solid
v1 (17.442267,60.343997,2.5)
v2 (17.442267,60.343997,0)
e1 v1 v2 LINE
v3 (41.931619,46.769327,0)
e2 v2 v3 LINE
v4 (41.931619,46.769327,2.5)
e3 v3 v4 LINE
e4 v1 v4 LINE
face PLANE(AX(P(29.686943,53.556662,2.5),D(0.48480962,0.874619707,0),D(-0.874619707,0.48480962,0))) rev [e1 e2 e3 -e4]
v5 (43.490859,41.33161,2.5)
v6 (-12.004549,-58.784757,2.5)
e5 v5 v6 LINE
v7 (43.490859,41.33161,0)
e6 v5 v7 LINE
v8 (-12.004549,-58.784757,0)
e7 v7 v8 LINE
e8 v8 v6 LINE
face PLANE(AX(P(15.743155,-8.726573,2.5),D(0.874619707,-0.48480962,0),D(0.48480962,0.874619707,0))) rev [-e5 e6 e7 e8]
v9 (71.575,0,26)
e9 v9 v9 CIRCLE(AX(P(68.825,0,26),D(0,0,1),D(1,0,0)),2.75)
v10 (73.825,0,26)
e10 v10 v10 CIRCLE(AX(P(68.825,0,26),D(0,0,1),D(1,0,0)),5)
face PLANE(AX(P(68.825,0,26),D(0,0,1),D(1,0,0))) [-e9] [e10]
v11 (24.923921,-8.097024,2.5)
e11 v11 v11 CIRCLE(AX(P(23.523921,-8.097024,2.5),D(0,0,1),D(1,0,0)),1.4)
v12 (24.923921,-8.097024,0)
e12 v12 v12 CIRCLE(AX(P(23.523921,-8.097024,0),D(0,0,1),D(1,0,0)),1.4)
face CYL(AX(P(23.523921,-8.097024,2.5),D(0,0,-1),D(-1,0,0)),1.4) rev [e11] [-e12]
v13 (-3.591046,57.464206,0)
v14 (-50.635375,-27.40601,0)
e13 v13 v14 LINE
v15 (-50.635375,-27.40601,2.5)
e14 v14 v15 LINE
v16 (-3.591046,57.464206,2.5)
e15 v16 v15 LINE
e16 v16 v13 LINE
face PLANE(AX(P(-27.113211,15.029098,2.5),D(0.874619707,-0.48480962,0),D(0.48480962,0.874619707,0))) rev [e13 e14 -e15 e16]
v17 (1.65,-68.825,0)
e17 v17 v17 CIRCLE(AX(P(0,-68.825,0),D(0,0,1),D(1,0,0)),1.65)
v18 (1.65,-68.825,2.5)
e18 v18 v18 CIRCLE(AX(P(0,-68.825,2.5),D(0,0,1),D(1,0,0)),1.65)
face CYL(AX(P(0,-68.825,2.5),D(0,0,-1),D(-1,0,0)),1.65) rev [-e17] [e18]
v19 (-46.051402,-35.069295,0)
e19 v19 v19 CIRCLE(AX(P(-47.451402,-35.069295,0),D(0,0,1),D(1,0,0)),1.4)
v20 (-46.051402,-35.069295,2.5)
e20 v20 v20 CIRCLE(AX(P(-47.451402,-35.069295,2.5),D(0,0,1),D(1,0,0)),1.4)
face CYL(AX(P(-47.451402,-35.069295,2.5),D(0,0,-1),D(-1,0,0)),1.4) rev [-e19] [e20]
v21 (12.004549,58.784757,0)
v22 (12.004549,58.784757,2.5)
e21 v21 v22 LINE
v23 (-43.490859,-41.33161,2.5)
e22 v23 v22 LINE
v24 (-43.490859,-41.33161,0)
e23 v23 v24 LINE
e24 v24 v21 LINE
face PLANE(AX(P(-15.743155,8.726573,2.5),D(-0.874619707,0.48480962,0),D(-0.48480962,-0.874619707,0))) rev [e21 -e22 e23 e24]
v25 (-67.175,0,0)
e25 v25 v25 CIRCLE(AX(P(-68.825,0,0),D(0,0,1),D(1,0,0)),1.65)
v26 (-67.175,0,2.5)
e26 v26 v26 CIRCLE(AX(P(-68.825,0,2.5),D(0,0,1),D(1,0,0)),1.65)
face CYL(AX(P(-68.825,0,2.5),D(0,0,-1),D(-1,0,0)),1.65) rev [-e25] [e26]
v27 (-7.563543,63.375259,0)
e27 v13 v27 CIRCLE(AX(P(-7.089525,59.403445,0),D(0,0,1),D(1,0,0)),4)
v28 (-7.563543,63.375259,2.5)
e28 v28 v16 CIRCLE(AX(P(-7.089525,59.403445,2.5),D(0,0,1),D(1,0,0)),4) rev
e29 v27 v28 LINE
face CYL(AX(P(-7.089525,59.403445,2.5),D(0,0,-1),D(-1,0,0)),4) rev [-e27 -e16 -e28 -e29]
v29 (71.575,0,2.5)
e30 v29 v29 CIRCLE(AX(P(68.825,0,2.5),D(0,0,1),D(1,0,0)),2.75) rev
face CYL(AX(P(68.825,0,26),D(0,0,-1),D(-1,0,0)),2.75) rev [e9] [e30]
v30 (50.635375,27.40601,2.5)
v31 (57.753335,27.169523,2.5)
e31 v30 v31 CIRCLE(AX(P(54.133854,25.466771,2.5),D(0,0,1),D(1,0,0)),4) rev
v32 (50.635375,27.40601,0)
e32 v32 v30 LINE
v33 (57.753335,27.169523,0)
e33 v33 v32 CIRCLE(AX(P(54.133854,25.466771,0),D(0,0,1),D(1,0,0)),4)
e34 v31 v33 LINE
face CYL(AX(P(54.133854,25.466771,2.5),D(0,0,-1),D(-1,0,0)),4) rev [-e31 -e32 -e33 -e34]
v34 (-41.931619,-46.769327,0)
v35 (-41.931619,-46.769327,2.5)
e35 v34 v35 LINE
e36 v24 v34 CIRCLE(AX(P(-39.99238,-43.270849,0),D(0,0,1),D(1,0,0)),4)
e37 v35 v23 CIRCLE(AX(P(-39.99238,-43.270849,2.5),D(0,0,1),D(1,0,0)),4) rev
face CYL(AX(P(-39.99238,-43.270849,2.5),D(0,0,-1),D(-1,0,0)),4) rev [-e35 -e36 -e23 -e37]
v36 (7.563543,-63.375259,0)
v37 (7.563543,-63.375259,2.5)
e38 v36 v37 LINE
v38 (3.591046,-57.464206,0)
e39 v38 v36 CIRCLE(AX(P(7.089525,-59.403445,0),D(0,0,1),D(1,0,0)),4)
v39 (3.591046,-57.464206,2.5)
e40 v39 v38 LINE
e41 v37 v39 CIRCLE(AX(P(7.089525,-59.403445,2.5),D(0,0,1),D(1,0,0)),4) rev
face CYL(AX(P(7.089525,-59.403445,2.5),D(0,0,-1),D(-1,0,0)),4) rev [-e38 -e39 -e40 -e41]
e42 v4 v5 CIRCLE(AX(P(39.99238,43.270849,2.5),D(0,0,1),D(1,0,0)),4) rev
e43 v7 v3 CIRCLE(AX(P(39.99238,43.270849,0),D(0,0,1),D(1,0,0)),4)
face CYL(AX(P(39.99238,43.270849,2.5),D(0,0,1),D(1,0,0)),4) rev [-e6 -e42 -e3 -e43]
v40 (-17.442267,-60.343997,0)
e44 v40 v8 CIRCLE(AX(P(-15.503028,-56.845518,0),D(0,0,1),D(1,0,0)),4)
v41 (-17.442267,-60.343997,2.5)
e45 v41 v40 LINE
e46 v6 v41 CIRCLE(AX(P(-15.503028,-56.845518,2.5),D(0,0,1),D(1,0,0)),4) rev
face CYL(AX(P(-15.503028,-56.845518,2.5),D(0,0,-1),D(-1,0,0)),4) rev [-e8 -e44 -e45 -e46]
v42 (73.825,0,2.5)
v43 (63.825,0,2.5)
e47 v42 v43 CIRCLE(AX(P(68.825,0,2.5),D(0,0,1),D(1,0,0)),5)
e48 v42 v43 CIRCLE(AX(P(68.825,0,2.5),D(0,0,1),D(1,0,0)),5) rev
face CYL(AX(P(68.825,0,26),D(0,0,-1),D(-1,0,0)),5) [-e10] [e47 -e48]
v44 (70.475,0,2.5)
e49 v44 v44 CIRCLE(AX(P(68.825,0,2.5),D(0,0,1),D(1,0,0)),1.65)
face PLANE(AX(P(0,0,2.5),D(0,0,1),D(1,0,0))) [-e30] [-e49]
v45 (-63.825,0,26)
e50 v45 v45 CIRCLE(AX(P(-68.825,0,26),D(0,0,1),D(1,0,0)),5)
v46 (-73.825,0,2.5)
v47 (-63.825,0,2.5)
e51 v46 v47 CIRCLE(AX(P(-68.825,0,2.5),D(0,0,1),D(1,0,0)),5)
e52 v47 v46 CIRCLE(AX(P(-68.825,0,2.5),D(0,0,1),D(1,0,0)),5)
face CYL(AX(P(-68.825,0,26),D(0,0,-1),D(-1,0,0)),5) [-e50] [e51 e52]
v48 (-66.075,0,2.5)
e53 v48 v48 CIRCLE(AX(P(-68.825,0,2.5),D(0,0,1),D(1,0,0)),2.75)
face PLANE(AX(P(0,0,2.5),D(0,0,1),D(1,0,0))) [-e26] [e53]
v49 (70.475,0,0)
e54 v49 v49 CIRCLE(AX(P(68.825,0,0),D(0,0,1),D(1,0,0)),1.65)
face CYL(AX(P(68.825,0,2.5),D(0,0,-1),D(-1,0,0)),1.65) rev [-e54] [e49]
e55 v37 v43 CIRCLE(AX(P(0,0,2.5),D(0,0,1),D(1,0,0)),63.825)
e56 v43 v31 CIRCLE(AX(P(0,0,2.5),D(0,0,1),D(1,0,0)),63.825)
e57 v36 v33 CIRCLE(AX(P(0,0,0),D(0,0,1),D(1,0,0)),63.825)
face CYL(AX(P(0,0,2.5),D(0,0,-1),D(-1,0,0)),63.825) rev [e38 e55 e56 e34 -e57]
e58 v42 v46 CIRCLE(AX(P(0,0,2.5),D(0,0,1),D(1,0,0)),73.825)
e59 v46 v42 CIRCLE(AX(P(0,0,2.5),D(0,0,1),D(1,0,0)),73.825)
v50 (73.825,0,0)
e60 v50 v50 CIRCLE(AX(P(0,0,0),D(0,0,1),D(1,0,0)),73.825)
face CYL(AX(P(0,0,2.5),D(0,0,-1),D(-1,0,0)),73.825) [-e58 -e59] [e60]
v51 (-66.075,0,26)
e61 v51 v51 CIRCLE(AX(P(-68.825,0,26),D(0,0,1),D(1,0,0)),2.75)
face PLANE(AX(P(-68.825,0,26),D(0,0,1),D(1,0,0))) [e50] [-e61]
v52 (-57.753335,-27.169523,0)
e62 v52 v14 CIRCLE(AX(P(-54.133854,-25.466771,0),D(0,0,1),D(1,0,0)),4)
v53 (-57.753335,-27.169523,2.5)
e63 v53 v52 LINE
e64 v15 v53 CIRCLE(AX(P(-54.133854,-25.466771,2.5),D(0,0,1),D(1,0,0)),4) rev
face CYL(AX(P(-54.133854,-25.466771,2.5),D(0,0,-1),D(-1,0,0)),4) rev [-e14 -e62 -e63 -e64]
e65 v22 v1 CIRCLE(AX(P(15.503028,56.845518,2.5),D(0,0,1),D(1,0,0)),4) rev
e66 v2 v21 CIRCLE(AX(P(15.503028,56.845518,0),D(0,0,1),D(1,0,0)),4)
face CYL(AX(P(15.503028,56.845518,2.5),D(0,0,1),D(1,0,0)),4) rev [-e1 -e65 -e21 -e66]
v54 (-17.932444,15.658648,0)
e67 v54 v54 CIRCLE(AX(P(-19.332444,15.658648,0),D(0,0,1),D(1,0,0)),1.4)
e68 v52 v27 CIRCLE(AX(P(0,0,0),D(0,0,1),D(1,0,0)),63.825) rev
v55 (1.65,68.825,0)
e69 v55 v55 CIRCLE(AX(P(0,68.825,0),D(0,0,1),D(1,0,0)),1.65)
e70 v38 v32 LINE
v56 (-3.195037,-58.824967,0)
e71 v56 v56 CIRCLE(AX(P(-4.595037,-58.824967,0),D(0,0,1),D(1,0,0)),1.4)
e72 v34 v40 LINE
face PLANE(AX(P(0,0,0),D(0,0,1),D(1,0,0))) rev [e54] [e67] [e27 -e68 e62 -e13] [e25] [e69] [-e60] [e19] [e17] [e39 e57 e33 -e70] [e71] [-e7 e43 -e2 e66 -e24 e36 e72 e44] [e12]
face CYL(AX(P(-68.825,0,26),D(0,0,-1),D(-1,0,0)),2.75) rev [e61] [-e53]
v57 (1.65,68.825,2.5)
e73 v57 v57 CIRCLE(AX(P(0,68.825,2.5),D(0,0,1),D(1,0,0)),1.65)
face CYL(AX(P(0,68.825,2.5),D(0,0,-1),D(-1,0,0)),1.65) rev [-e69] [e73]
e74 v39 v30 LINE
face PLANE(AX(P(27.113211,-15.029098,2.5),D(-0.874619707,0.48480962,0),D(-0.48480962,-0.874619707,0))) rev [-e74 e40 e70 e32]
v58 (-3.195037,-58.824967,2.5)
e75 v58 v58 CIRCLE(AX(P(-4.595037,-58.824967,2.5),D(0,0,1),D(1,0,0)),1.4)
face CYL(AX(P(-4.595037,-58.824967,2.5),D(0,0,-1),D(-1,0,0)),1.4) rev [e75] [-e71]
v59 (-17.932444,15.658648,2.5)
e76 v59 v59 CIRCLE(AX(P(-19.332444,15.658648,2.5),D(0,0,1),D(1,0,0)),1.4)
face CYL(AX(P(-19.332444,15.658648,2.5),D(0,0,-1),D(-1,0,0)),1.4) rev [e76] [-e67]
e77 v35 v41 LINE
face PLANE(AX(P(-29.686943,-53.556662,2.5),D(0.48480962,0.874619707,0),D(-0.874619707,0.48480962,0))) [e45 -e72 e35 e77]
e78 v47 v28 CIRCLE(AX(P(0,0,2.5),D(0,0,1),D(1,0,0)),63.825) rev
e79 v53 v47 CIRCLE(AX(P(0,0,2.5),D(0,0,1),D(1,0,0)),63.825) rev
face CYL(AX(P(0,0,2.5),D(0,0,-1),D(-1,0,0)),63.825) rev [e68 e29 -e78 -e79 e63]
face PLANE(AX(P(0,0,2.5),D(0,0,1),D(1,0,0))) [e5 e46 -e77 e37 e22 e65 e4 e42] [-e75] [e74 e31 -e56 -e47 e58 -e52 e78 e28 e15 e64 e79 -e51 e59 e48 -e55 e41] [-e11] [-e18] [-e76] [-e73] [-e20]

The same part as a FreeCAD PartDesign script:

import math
import FreeCAD as App
import Part
import Sketcher
from FreeCAD import Vector
Q = App.Units.Quantity


def edges_at(feature, points):
    """Names of the edges that pass closest to the given points."""
    edges = feature.Shape.Edges
    near = lambda p: min(range(len(edges)), key=lambda i: edges[i].distToShape(Part.Vertex(*p))[0])
    return sorted({f"Edge{near(p) + 1}" for p in points})


def add_polygon(sketch, points):
    """Adds a closed chain of lines whose ends are joined by coincident constraints."""
    first, n = sketch.GeometryCount, len(points)
    for a, b in zip(points, points[1:] + points[:1]):
        sketch.addGeometry(Part.LineSegment(App.Vector(*a, 0), App.Vector(*b, 0)), False)
    for i in range(n):
        sketch.addConstraint(Sketcher.Constraint("Coincident", first + i, 2, first + (i + 1) % n, 1))

doc = App.newDocument("Part")
body = doc.addObject("PartDesign::Body", "Body")

# Sketch on XY plane
sketch1 = doc.addObject("Sketcher::SketchObject", "Sketch")
body.addObject(sketch1)
sketch1.AttachmentSupport = (doc.XY_Plane, [""])
sketch1.MapMode = "FlatFace"
sketch1.addGeometry(Part.Circle(Vector(0, 0, 0), Vector(0, 0, 1), 73.8), False)  # 0
sketch1.addGeometry(Part.Circle(Vector(-4.6, -58.8, 0), Vector(0, 0, 1), 1.4), False)  # 1
sketch1.addGeometry(Part.Circle(Vector(-47.5, -35.1, 0), Vector(0, 0, 1), 1.4), False)  # 2
sketch1.addGeometry(Part.Circle(Vector(0, -68.8, 0), Vector(0, 0, 1), 1.6), False)  # 3
add_polygon(sketch1, [(-13.9, -62.3), (-45.4, -44.8), (13.9, 62.3), (45.4, 44.8)])  # lines 4-7
sketch1.addGeometry(Part.ArcOfCircle(Part.Circle(Vector(0, 0, 0), Vector(0, 0, 1), 63.8), math.radians(-90), math.radians(32)), False)  # 8
sketch1.addGeometry(Part.LineSegment(Vector(0.1, -63.8, 0), Vector(54.2, 33.8, 0)), False)  # 9
sketch1.addGeometry(Part.Circle(Vector(23.5, -8.1, 0), Vector(0, 0, 1), 1.4), False)  # 10
sketch1.addGeometry(Part.Circle(Vector(-68.8, 0, 0), Vector(0, 0, 1), 1.6), False)  # 11
sketch1.addGeometry(Part.ArcOfCircle(Part.Circle(Vector(0, 0, 0), Vector(0, 0, 1), 63.8), math.radians(90), math.radians(212)), False)  # 12
sketch1.addGeometry(Part.LineSegment(Vector(-0.1, 63.8, 0), Vector(-54.2, -33.8, 0)), False)  # 13
sketch1.addGeometry(Part.Circle(Vector(-19.3, 15.7, 0), Vector(0, 0, 1), 1.4), False)  # 14
sketch1.addGeometry(Part.Circle(Vector(68.8, 0, 0), Vector(0, 0, 1), 1.6), False)  # 15
sketch1.addGeometry(Part.Circle(Vector(0, 68.8, 0), Vector(0, 0, 1), 1.6), False)  # 16
sketch1.addConstraint([
    Sketcher.Constraint("Coincident", 8, 1, 9, 1),
    Sketcher.Constraint("Coincident", 9, 2, 8, 2),
    Sketcher.Constraint("Coincident", 12, 1, 13, 1),
    Sketcher.Constraint("Coincident", 13, 2, 12, 2),
    Sketcher.Constraint("Coincident", 0, 3, -1, 1),
    Sketcher.Constraint("Coincident", 8, 3, -1, 1),
    Sketcher.Constraint("Coincident", 12, 3, -1, 1),
    Sketcher.Constraint("Equal", 1, 2),
    Sketcher.Constraint("Equal", 2, 10),
    Sketcher.Constraint("Equal", 3, 11),
    Sketcher.Constraint("Equal", 8, 12),
    Sketcher.Constraint("Equal", 10, 14),
    Sketcher.Constraint("Equal", 11, 15),
    Sketcher.Constraint("Equal", 15, 16),
    Sketcher.Constraint("Symmetric", 11, 3, 15, 3, -1, 1),
    Sketcher.Constraint("Symmetric", 3, 3, 16, 3, -1, 1),
    Sketcher.Constraint("Symmetric", 4, 2, 6, 2, -1, 1),
    Sketcher.Constraint("Symmetric", 5, 2, 7, 2, -1, 1),
    Sketcher.Constraint("PointOnObject", 3, 3, -2),
    Sketcher.Constraint("PointOnObject", 11, 3, -1),
    Sketcher.Constraint("Perpendicular", 4, 5),
    Sketcher.Constraint("Parallel", 7, 9),
    Sketcher.Constraint("Parallel", 9, 13),
    Sketcher.Constraint("Equal", 9, 13),
    Sketcher.Constraint("Diameter", 1, Q("2.8 mm")),
    Sketcher.Constraint("Diameter", 3, Q("3.3 mm")),
    Sketcher.Constraint("Diameter", 0, Q("147.65 mm")),
    Sketcher.Constraint("Angle", 4, Q("151 deg")),
    Sketcher.Constraint("Distance", 4, Q("36 mm")),
    Sketcher.Constraint("Radius", 8, Q("63.825 mm")),
    Sketcher.Constraint("DistanceY", 8, 1, 1, 3, Q("5 mm")),
    Sketcher.Constraint("DistanceY", 3, 3, -1, 1, Q("68.825 mm")),
    Sketcher.Constraint("DistanceX", 11, 3, -1, 1, Q("68.825 mm")),
    Sketcher.Constraint("DistanceX", 13, 2, 2, 3, Q("6.7098 mm")),
    Sketcher.Constraint("Distance", 9, Q("111.581909 mm")),
    Sketcher.Constraint("DistanceX", -1, 1, 10, 3, Q("23.523921 mm")),
    Sketcher.Constraint("DistanceY", 4, 2, -1, 1, Q("44.830089 mm")),
    Sketcher.Constraint("DistanceY", 1, 3, 2, 3, Q("23.755671 mm")),
    Sketcher.Constraint("DistanceY", 2, 3, 10, 3, Q("26.972272 mm")),
    Sketcher.Constraint("DistanceY", 10, 3, 14, 3, Q("23.755671 mm")),
    Sketcher.Constraint("DistanceX", 4, 2, 1, 3, Q("40.835061 mm")),
    Sketcher.Constraint("DistanceX", 14, 3, -1, 1, Q("19.332444 mm")),
])
pad1 = doc.addObject("PartDesign::Pad", "Pad")
body.addObject(pad1)
pad1.Profile = sketch1
pad1.Length = 2.5
doc.recompute()

fillet = doc.addObject("PartDesign::Fillet", "Fillet")
body.addObject(fillet)
fillet.Base = (pad1, edges_at(pad1, [
    (-0.065, 63.825, 1.25),
    (-54.161, -33.767, 1.25),
    (-45.43, -44.83, 1.25),
    (-13.944, -62.283, 1.25),
    (45.43, 44.83, 1.25),
    (13.944, 62.283, 1.25),
    (54.161, 33.767, 1.25),
    (0.065, -63.825, 1.25),
]))
fillet.Radius = 4

# Sketch on XY plane
sketch2 = doc.addObject("Sketcher::SketchObject", "Sketch001")
body.addObject(sketch2)
sketch2.AttachmentSupport = (doc.XY_Plane, [""])
sketch2.MapMode = "FlatFace"
sketch2.AttachmentOffset = App.Placement(Vector(0, 0, 2.5), App.Rotation())
sketch2.addGeometry([
    Part.Circle(Vector(-68.8, 0, 0), Vector(0, 0, 1), 5),
    Part.Circle(Vector(-68.8, 0, 0), Vector(0, 0, 1), 2.8),
    Part.Circle(Vector(68.8, 0, 0), Vector(0, 0, 1), 5),
    Part.Circle(Vector(68.8, 0, 0), Vector(0, 0, 1), 2.8),
], False)
sketch2.addConstraint([
    Sketcher.Constraint("Coincident", 1, 3, 0, 3),
    Sketcher.Constraint("Coincident", 3, 3, 2, 3),
    Sketcher.Constraint("Equal", 0, 2),
    Sketcher.Constraint("Equal", 1, 3),
    Sketcher.Constraint("Symmetric", 0, 3, 2, 3, -1, 1),
    Sketcher.Constraint("PointOnObject", 0, 3, -1),
    Sketcher.Constraint("Diameter", 0, Q("10 mm")),
    Sketcher.Constraint("Diameter", 1, Q("5.5 mm")),
    Sketcher.Constraint("DistanceX", 0, 3, 2, 3, Q("137.65 mm")),
])
pad2 = doc.addObject("PartDesign::Pad", "Pad001")
body.addObject(pad2)
pad2.Profile = sketch2
pad2.Length = 23.5

doc.recompute()
